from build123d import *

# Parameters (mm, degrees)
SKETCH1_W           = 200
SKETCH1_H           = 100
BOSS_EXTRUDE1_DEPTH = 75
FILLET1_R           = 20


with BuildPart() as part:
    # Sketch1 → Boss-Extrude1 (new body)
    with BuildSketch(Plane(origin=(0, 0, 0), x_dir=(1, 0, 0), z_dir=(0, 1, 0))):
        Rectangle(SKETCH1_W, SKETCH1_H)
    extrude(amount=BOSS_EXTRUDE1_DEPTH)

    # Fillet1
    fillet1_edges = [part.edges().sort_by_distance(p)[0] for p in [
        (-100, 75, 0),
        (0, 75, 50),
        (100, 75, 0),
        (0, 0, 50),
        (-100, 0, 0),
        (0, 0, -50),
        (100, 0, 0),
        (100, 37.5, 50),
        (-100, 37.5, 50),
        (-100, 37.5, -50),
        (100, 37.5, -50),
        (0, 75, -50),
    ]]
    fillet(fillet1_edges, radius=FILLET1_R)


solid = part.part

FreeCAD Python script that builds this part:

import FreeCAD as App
import Part
import Sketcher
from FreeCAD import Vector
Q = App.Units.Quantity

doc = App.newDocument("Part")
body = doc.addObject("PartDesign::Body", "Body")

# Sketch on XZ plane
sketch1 = body.newObject("Sketcher::SketchObject", "Sketch")
sketch1.AttachmentSupport = (doc.getObject("XZ_Plane"), [""])
sketch1.MapMode = "FlatFace"
sketch1.addGeometry([
    Part.LineSegment(Vector(-100, -50, 0), Vector(-100, 50, 0)),
    Part.LineSegment(Vector(-100, 50, 0), Vector(100, 50, 0)),
    Part.LineSegment(Vector(100, 50, 0), Vector(100, -50, 0)),
    Part.LineSegment(Vector(100, -50, 0), Vector(-100, -50, 0)),
], False)
sketch1.addConstraint([
    Sketcher.Constraint("Coincident", 0, 2, 1, 1),
    Sketcher.Constraint("Coincident", 1, 2, 2, 1),
    Sketcher.Constraint("Coincident", 2, 2, 3, 1),
    Sketcher.Constraint("Coincident", 3, 2, 0, 1),
    Sketcher.Constraint("Vertical", 0),
    Sketcher.Constraint("Horizontal", 1),
    Sketcher.Constraint("Vertical", 2),
    Sketcher.Constraint("Horizontal", 3),
    Sketcher.Constraint("Symmetric", 0, 2, 2, 2, -1, 1),
    Sketcher.Constraint("DistanceX", 1, 1, 1, 2, Q("200 mm")),
    Sketcher.Constraint("DistanceY", 0, 1, 0, 2, Q("100 mm")),
])
pad1 = body.newObject("PartDesign::Pad", "Pad")
pad1.Profile = sketch1
pad1.Length = 75
pad1.Reversed = True
doc.recompute()

fillet = body.newObject("PartDesign::Fillet", "Fillet")
fillet.Base = (pad1, ["Edge1"])
fillet.UseAllEdges = True
fillet.Radius = 20

doc.recompute()
